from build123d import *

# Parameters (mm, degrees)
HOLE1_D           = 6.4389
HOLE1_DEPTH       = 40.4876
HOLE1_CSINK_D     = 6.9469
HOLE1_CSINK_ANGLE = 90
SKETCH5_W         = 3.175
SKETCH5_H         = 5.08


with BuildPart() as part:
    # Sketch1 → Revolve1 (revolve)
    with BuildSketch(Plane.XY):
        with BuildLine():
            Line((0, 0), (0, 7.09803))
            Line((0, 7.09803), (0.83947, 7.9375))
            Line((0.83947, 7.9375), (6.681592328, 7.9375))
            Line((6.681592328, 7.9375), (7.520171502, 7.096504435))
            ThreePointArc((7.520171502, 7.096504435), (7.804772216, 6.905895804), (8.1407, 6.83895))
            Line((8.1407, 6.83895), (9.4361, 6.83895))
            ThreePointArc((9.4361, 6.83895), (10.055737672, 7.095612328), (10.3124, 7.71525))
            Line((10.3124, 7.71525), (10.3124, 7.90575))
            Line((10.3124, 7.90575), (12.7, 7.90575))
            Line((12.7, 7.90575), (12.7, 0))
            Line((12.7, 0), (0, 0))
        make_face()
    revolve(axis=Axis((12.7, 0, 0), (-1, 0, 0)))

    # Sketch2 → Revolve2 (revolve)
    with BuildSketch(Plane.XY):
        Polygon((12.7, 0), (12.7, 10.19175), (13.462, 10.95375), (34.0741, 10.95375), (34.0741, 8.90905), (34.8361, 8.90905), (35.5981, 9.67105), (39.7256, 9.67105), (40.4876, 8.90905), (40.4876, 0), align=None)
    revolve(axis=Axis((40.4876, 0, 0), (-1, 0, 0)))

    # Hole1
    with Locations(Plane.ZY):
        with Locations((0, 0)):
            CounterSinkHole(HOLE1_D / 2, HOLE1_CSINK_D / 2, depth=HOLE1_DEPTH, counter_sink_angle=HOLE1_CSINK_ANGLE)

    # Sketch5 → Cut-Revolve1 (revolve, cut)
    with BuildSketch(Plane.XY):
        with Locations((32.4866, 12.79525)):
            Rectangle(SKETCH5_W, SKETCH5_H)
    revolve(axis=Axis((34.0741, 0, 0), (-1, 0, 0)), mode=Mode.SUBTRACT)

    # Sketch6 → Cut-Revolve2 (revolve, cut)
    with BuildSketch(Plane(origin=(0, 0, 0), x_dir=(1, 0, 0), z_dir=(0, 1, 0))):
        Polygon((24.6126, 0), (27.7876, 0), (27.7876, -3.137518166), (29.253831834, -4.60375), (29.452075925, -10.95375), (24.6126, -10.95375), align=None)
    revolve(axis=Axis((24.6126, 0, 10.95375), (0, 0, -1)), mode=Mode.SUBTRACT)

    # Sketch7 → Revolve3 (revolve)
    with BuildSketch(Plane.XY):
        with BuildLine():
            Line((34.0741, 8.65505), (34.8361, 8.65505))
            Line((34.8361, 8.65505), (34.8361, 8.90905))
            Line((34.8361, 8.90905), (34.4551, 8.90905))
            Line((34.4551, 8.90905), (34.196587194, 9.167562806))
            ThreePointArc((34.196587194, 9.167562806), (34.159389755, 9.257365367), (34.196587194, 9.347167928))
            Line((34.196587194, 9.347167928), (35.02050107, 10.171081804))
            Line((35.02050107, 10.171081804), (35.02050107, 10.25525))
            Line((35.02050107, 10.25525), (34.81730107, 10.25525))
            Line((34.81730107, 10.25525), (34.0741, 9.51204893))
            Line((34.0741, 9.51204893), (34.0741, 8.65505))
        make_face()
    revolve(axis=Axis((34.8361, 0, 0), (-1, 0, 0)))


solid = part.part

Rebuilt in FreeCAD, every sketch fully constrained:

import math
import FreeCAD as App
import Part
import Sketcher
from FreeCAD import Vector
Q = App.Units.Quantity


def add_polygon(sketch, points):
    """Adds a closed chain of lines whose ends are joined by coincident constraints."""
    first, n = sketch.GeometryCount, len(points)
    for a, b in zip(points, points[1:] + points[:1]):
        sketch.addGeometry(Part.LineSegment(App.Vector(*a, 0), App.Vector(*b, 0)), False)
    for i in range(n):
        sketch.addConstraint(Sketcher.Constraint("Coincident", first + i, 2, first + (i + 1) % n, 1))

doc = App.newDocument("Part")
body = doc.addObject("PartDesign::Body", "Body")

# Sketch on XY plane
sketch1 = body.newObject("Sketcher::SketchObject", "Sketch")
sketch1.AttachmentSupport = (doc.getObject("XY_Plane"), [""])
sketch1.MapMode = "FlatFace"
sketch1.addGeometry(Part.LineSegment(Vector(0, 7.09803, 0), Vector(0, 0, 0)), False)
sketch1.addGeometry(Part.LineSegment(Vector(0, 0, 0), Vector(12.7, 0, 0)), False)
sketch1.addGeometry(Part.LineSegment(Vector(12.7, 0, 0), Vector(12.7, 7.90575, 0)), False)
sketch1.addGeometry(Part.LineSegment(Vector(12.7, 7.90575, 0), Vector(10.3124, 7.90575, 0)), False)
sketch1.addGeometry(Part.LineSegment(Vector(10.3124, 7.90575, 0), Vector(10.3124, 7.71525, 0)), False)
sketch1.addGeometry(Part.ArcOfCircle(Part.Circle(Vector(9.4361, 7.71525, 0), Vector(0, 0, 1), 0.8763), math.radians(-90), math.radians(0)), False)
sketch1.addGeometry(Part.LineSegment(Vector(9.4361, 6.83895, 0), Vector(8.1407, 6.83895, 0)), False)
sketch1.addGeometry(Part.ArcOfCircle(Part.Circle(Vector(8.1407, 7.71525, 0), Vector(0, 0, 1), 0.8763), math.radians(-135.082431), math.radians(-90)), False)
sketch1.addGeometry(Part.LineSegment(Vector(7.520172, 7.096504, 0), Vector(6.681592, 7.9375, 0)), False)
sketch1.addGeometry(Part.LineSegment(Vector(6.681592, 7.9375, 0), Vector(0.83947, 7.9375, 0)), False)
sketch1.addGeometry(Part.LineSegment(Vector(0.83947, 7.9375, 0), Vector(0, 7.09803, 0)), False)
sketch1.addConstraint(Sketcher.Constraint("Coincident", 0, 2, 1, 1))
sketch1.addConstraint(Sketcher.Constraint("Coincident", 1, 2, 2, 1))
sketch1.addConstraint(Sketcher.Constraint("Coincident", 2, 2, 3, 1))
sketch1.addConstraint(Sketcher.Constraint("Coincident", 3, 2, 4, 1))
sketch1.addConstraint(Sketcher.Constraint("Tangent", 4, 2, 5, 2))
sketch1.addConstraint(Sketcher.Constraint("Tangent", 5, 1, 6, 1))
sketch1.addConstraint(Sketcher.Constraint("Tangent", 6, 2, 7, 2))
sketch1.addConstraint(Sketcher.Constraint("Tangent", 7, 1, 8, 1))
sketch1.addConstraint(Sketcher.Constraint("Coincident", 8, 2, 9, 1))
sketch1.addConstraint(Sketcher.Constraint("Coincident", 9, 2, 10, 1))
sketch1.addConstraint(Sketcher.Constraint("Coincident", 10, 2, 0, 1))
sketch1.addConstraint(Sketcher.Constraint("Vertical", 0))
sketch1.addConstraint(Sketcher.Constraint("Horizontal", 1))
sketch1.addConstraint(Sketcher.Constraint("Vertical", 2))
sketch1.addConstraint(Sketcher.Constraint("Horizontal", 3))
sketch1.addConstraint(Sketcher.Constraint("Vertical", 4))
sketch1.addConstraint(Sketcher.Constraint("Horizontal", 6))
sketch1.addConstraint(Sketcher.Constraint("Horizontal", 9))
sketch1.addConstraint(Sketcher.Constraint("Coincident", 0, 2, -1, 1))
sketch1.addConstraint(Sketcher.Constraint("Equal", 5, 7))
sketch1.addConstraint(Sketcher.Constraint("DistanceX", 1, 1, 1, 2, Q("0.5 in")))
sketch1.addConstraint(Sketcher.Constraint("Angle", 10, Q("-135 deg")))
sketch1.addConstraint(Sketcher.Constraint("Radius", 5, Q("0.0345 in")))
sketch1.addConstraint(Sketcher.Constraint("DistanceX", 3, 2, 3, 1, Q("0.094 in")))
sketch1.addConstraint(Sketcher.Constraint("DistanceX", 6, 2, 6, 1, Q("0.051 in")))
sketch1.addConstraint(Sketcher.Constraint("DistanceY", 4, 2, 4, 1, Q("0.0075 in")))
sketch1.addConstraint(Sketcher.Constraint("DistanceY", -1, 1, 8, 2, Q("0.3125 in")))
sketch1.addConstraint(Sketcher.Constraint("DistanceY", 6, 2, 10, 2, Q("0.0102 in")))
sketch1.addConstraint(Sketcher.Constraint("DistanceY", 0, 2, 0, 1, Q("7.09803 mm")))
sketch1.addConstraint(Sketcher.Constraint("DistanceX", 9, 2, 7, 1, Q("6.680702 mm")))
revolution = body.newObject("PartDesign::Revolution", "Revolution")
revolution.Profile = sketch1
revolution.ReferenceAxis = (sketch1, ["H_Axis"])
revolution.Angle = 360

# Sketch on XY plane
sketch2 = body.newObject("Sketcher::SketchObject", "Sketch001")
sketch2.AttachmentSupport = (doc.getObject("XY_Plane"), [""])
sketch2.MapMode = "FlatFace"
add_polygon(sketch2, [(12.7, 10.19175), (12.7, 0), (40.4876, 0), (40.4876, 8.90905), (39.7256, 9.67105), (35.5981, 9.67105), (34.8361, 8.90905), (34.0741, 8.90905), (34.0741, 10.95375), (13.462, 10.95375)])  # lines 0-9
sketch2.addConstraint(Sketcher.Constraint("Vertical", 0))
sketch2.addConstraint(Sketcher.Constraint("Horizontal", 1))
sketch2.addConstraint(Sketcher.Constraint("Vertical", 2))
sketch2.addConstraint(Sketcher.Constraint("Horizontal", 4))
sketch2.addConstraint(Sketcher.Constraint("Horizontal", 6))
sketch2.addConstraint(Sketcher.Constraint("Vertical", 7))
sketch2.addConstraint(Sketcher.Constraint("Horizontal", 8))
sketch2.addConstraint(Sketcher.Constraint("PointOnObject", 0, 2, -1))
sketch2.addConstraint(Sketcher.Constraint("Perpendicular", 3, 5))
sketch2.addConstraint(Sketcher.Constraint("Parallel", 5, 9))
sketch2.addConstraint(Sketcher.Constraint("Horizontal", 2, 2, 5, 2))
sketch2.addConstraint(Sketcher.Constraint("Equal", 3, 5))
sketch2.addConstraint(Sketcher.Constraint("Equal", 5, 9))
sketch2.addConstraint(Sketcher.Constraint("DistanceX", 6, 2, 6, 1, Q("0.03 in")))
sketch2.addConstraint(Sketcher.Constraint("DistanceX", -1, 1, 0, 2, Q("0.5 in")))
sketch2.addConstraint(Sketcher.Constraint("DistanceX", 1, 1, 1, 2, Q("1.094 in")))
sketch2.addConstraint(Sketcher.Constraint("DistanceX", -1, 1, 8, 2, Q("0.53 in")))
sketch2.addConstraint(Sketcher.Constraint("DistanceX", 4, 2, 4, 1, Q("0.1625 in")))
sketch2.addConstraint(Sketcher.Constraint("DistanceY", 7, 1, 7, 2, Q("0.0805 in")))
sketch2.addConstraint(Sketcher.Constraint("DistanceY", 0, 2, 0, 1, Q("10.19175 mm")))
revolution2 = body.newObject("PartDesign::Revolution", "Revolution001")
revolution2.Profile = sketch2
revolution2.ReferenceAxis = (sketch2, ["H_Axis"])
revolution2.Angle = 360

# Sketch on YZ plane
sketch3 = body.newObject("Sketcher::SketchObject", "Sketch002")
sketch3.AttachmentSupport = (doc.getObject("YZ_Plane"), [""])
sketch3.MapMode = "FlatFace"
sketch3.addGeometry(Part.Circle(Vector(0, 0, 0), Vector(0, 0, 1), 3.21945), False)
sketch3.addConstraint(Sketcher.Constraint("Coincident", 0, 3, -1, 1))
sketch3.addConstraint(Sketcher.Constraint("Diameter", 0, Q("0.2535 in")))
doc.recompute()
hole = body.newObject("PartDesign::Hole", "Hole")
hole.Profile = sketch3
hole.ThreadType = "None"
hole.Diameter = Q("0.2535 in")
hole.DepthType = "Dimension"
hole.Depth = Q("1.594 in")
hole.DrillPoint = "Flat"
hole.HoleCutType = "Countersink"
hole.HoleCutDiameter = Q("0.2735 in")
hole.HoleCutCountersinkAngle = 90
hole.Reversed = True

# Sketch on XY plane
sketch4 = body.newObject("Sketcher::SketchObject", "Sketch003")
sketch4.AttachmentSupport = (doc.getObject("XY_Plane"), [""])
sketch4.MapMode = "FlatFace"
add_polygon(sketch4, [(30.8991, 15.33525), (30.8991, 10.25525), (34.0741, 10.25525), (34.0741, 15.33525)])  # lines 0-3
sketch4.addConstraint(Sketcher.Constraint("Vertical", 0))
sketch4.addConstraint(Sketcher.Constraint("Horizontal", 1))
sketch4.addConstraint(Sketcher.Constraint("Vertical", 2))
sketch4.addConstraint(Sketcher.Constraint("Horizontal", 3))
sketch4.addConstraint(Sketcher.Constraint("DistanceY", 0, 2, 0, 1, Q("0.2 in")))
sketch4.addConstraint(Sketcher.Constraint("DistanceX", 1, 1, 1, 2, Q("0.125 in")))
sketch4.addConstraint(Sketcher.Constraint("DistanceX", -1, 1, 0, 2, Q("1.2165 in")))
sketch4.addConstraint(Sketcher.Constraint("DistanceY", -1, 1, 0, 2, Q("10.25525 mm")))
groove = body.newObject("PartDesign::Groove", "Groove")
groove.Profile = sketch4
groove.ReferenceAxis = (sketch4, ["H_Axis"])
groove.Angle = 360

# Sketch on XZ plane
sketch5 = body.newObject("Sketcher::SketchObject", "Sketch004")
sketch5.AttachmentSupport = (doc.getObject("XZ_Plane"), [""])
sketch5.MapMode = "FlatFace"
add_polygon(sketch5, [(27.7876, 0), (24.6126, 0), (24.6126, 10.95375), (29.452076, 10.95375), (29.253832, 4.60375), (27.7876, 3.137518)])  # lines 0-5
sketch5.addGeometry(Part.LineSegment(Vector(24.6126, 10.95375, 0), Vector(24.6126, 0, 0)), True)  # axis
sketch5.addConstraint(Sketcher.Constraint("Horizontal", 0))
sketch5.addConstraint(Sketcher.Constraint("Vertical", 1))
sketch5.addConstraint(Sketcher.Constraint("Horizontal", 2))
sketch5.addConstraint(Sketcher.Constraint("Vertical", 5))
sketch5.addConstraint(Sketcher.Constraint("Vertical", 6))
sketch5.addConstraint(Sketcher.Constraint("Coincident", 6, 1, 1, 2))
sketch5.addConstraint(Sketcher.Constraint("PointOnObject", 0, 2, -1))
sketch5.addConstraint(Sketcher.Constraint("PointOnObject", 6, 2, -1))
sketch5.addConstraint(Sketcher.Constraint("Angle", 4, Q("-135 deg")))
sketch5.addConstraint(Sketcher.Constraint("DistanceX", 0, 2, 0, 1, Q("0.125 in")))
sketch5.addConstraint(Sketcher.Constraint("DistanceY", 3, 2, 2, 2, Q("0.25 in")))
sketch5.addConstraint(Sketcher.Constraint("DistanceX", -1, 1, 0, 2, Q("0.969 in")))
sketch5.addConstraint(Sketcher.Constraint("DistanceY", 1, 1, 1, 2, Q("10.95375 mm")))
sketch5.addConstraint(Sketcher.Constraint("DistanceY", 5, 2, 5, 1, Q("3.137518 mm")))
sketch5.addConstraint(Sketcher.Constraint("DistanceX", 2, 1, 2, 2, Q("4.839476 mm")))
groove2 = body.newObject("PartDesign::Groove", "Groove001")
groove2.Profile = sketch5
groove2.ReferenceAxis = (sketch5, ["Axis0"])
groove2.Angle = 360

# Sketch on XY plane
sketch6 = body.newObject("Sketcher::SketchObject", "Sketch005")
sketch6.AttachmentSupport = (doc.getObject("XY_Plane"), [""])
sketch6.MapMode = "FlatFace"
sketch6.addGeometry(Part.LineSegment(Vector(34.0741, 8.65505, 0), Vector(34.8361, 8.65505, 0)), False)
sketch6.addGeometry(Part.LineSegment(Vector(34.8361, 8.65505, 0), Vector(34.8361, 8.90905, 0)), False)
sketch6.addGeometry(Part.LineSegment(Vector(34.8361, 8.90905, 0), Vector(34.4551, 8.90905, 0)), False)
sketch6.addGeometry(Part.LineSegment(Vector(34.4551, 8.90905, 0), Vector(34.196587, 9.167563, 0)), False)
sketch6.addGeometry(Part.ArcOfCircle(Part.Circle(Vector(34.28639, 9.257365, 0), Vector(0, 0, 1), 0.127), math.radians(135), math.radians(225)), False)
sketch6.addGeometry(Part.LineSegment(Vector(34.196587, 9.347168, 0), Vector(35.020501, 10.171082, 0)), False)
sketch6.addGeometry(Part.LineSegment(Vector(35.020501, 10.171082, 0), Vector(35.020501, 10.25525, 0)), False)
sketch6.addGeometry(Part.LineSegment(Vector(35.020501, 10.25525, 0), Vector(34.817301, 10.25525, 0)), False)
sketch6.addGeometry(Part.LineSegment(Vector(34.817301, 10.25525, 0), Vector(34.0741, 9.512049, 0)), False)
sketch6.addGeometry(Part.LineSegment(Vector(34.0741, 9.512049, 0), Vector(34.0741, 8.65505, 0)), False)
sketch6.addConstraint(Sketcher.Constraint("Coincident", 0, 2, 1, 1))
sketch6.addConstraint(Sketcher.Constraint("Coincident", 1, 2, 2, 1))
sketch6.addConstraint(Sketcher.Constraint("Coincident", 2, 2, 3, 1))
sketch6.addConstraint(Sketcher.Constraint("Tangent", 3, 2, 4, 2))
sketch6.addConstraint(Sketcher.Constraint("Tangent", 4, 1, 5, 1))
sketch6.addConstraint(Sketcher.Constraint("Coincident", 5, 2, 6, 1))
sketch6.addConstraint(Sketcher.Constraint("Coincident", 6, 2, 7, 1))
sketch6.addConstraint(Sketcher.Constraint("Coincident", 7, 2, 8, 1))
sketch6.addConstraint(Sketcher.Constraint("Coincident", 8, 2, 9, 1))
sketch6.addConstraint(Sketcher.Constraint("Coincident", 9, 2, 0, 1))
sketch6.addConstraint(Sketcher.Constraint("Horizontal", 0))
sketch6.addConstraint(Sketcher.Constraint("Vertical", 1))
sketch6.addConstraint(Sketcher.Constraint("Horizontal", 2))
sketch6.addConstraint(Sketcher.Constraint("Vertical", 6))
sketch6.addConstraint(Sketcher.Constraint("Horizontal", 7))
sketch6.addConstraint(Sketcher.Constraint("Vertical", 9))
sketch6.addConstraint(Sketcher.Constraint("Perpendicular", 3, 5))
sketch6.addConstraint(Sketcher.Constraint("Parallel", 5, 8))
sketch6.addConstraint(Sketcher.Constraint("Vertical", 3, 2, 4, 1))
sketch6.addConstraint(Sketcher.Constraint("Radius", 4, Q("0.005 in")))
sketch6.addConstraint(Sketcher.Constraint("DistanceX", 0, 1, 0, 2, Q("0.03 in")))
sketch6.addConstraint(Sketcher.Constraint("DistanceY", 1, 1, 1, 2, Q("0.01 in")))
sketch6.addConstraint(Sketcher.Constraint("DistanceX", 2, 2, 2, 1, Q("0.015 in")))
sketch6.addConstraint(Sketcher.Constraint("DistanceX", 7, 2, 7, 1, Q("0.008 in")))
sketch6.addConstraint(Sketcher.Constraint("DistanceY", 1, 2, 6, 2, Q("0.053 in")))
sketch6.addConstraint(Sketcher.Constraint("DistanceY", 9, 2, 9, 1, Q("0.856999 mm")))
sketch6.addConstraint(Sketcher.Constraint("DistanceX", -1, 1, 0, 2, Q("1.3715 in")))
sketch6.addConstraint(Sketcher.Constraint("DistanceY", 6, 1, 6, 2, Q("0.084168 mm")))
sketch6.addConstraint(Sketcher.Constraint("DistanceY", -1, 1, 0, 2, Q("8.65505 mm")))
revolution3 = body.newObject("PartDesign::Revolution", "Revolution002")
revolution3.Profile = sketch6
revolution3.ReferenceAxis = (sketch6, ["H_Axis"])
revolution3.Angle = 360

doc.recompute()
